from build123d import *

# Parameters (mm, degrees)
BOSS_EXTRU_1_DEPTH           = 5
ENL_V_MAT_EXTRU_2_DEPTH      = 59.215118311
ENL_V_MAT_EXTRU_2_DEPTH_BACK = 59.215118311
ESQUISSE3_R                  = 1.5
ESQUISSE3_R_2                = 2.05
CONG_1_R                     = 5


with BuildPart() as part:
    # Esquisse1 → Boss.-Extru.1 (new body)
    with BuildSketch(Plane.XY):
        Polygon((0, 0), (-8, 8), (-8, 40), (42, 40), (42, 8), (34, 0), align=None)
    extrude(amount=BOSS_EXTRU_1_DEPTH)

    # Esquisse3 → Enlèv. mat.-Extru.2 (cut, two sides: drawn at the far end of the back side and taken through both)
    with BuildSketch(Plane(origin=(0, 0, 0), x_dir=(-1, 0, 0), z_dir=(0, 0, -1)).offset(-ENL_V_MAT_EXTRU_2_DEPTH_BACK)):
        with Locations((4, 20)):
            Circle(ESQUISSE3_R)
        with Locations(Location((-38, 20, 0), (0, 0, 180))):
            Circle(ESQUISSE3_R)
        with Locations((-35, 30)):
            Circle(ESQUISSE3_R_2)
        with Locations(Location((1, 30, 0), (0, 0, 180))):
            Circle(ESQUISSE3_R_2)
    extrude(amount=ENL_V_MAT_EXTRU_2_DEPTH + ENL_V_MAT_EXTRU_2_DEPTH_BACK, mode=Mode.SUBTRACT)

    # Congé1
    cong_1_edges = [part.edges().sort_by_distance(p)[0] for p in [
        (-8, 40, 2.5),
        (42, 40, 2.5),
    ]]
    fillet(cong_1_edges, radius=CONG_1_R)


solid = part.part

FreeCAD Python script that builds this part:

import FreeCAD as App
import Part
import Sketcher
from FreeCAD import Vector


def edges_at(feature, points):
    """Names of the edges that pass closest to the given points."""
    edges = feature.Shape.Edges
    near = lambda p: min(range(len(edges)), key=lambda i: edges[i].distToShape(Part.Vertex(*p))[0])
    return sorted({f"Edge{near(p) + 1}" for p in points})


def add_polygon(sketch, points):
    """Adds a closed chain of lines whose ends are joined by coincident constraints."""
    first, n = sketch.GeometryCount, len(points)
    for a, b in zip(points, points[1:] + points[:1]):
        sketch.addGeometry(Part.LineSegment(App.Vector(*a, 0), App.Vector(*b, 0)), False)
    for i in range(n):
        sketch.addConstraint(Sketcher.Constraint("Coincident", first + i, 2, first + (i + 1) % n, 1))

doc = App.newDocument("Part")
params = doc.addObject("Spreadsheet::Sheet", "Params")
for row, (alias, value) in enumerate([
    ("sketch1_width", "34 mm"),
    ("sketch1_width2", "50 mm"),
    ("sketch1_height", "32 mm"),
    ("pad1_length", "5 mm"),
    ("sketch2_diameter", "3 mm"),
    ("sketch2_diameter2", "4.1 mm"),
    ("fillet_radius", "5 mm"),
], start=1):
    params.set(f"A{row}", alias)
    params.set(f"B{row}", "=" + value)
    params.setAlias(f"B{row}", alias)

body = doc.addObject("PartDesign::Body", "Body")

# Sketch on XY plane
sketch1 = body.newObject("Sketcher::SketchObject", "Sketch")
sketch1.AttachmentSupport = (doc.getObject("XY_Plane"), [""])
sketch1.MapMode = "FlatFace"
add_polygon(sketch1, [(-8, 8), (0, 0), (34, 0), (42, 8), (42, 40), (-8, 40)])  # lines 0-5
sketch1.addConstraint([
    Sketcher.Constraint("Horizontal", 1),
    Sketcher.Constraint("Vertical", 3),
    Sketcher.Constraint("Horizontal", 4),
    Sketcher.Constraint("Vertical", 5),
    Sketcher.Constraint("Coincident", 0, 2, -1, 1),
    Sketcher.Constraint("Perpendicular", 0, 2),
    Sketcher.Constraint("Horizontal", 2, 2, 5, 2),
    Sketcher.Constraint("Equal", 0, 2),
    Sketcher.Constraint("DistanceX", 1, 1, 1, 2, 34.0),
    Sketcher.Constraint("DistanceX", 4, 2, 4, 1, 50.0),
    Sketcher.Constraint("DistanceY", 3, 1, 3, 2, 32.0),
])
sketch1.setExpression("Constraints[14]", "Params.sketch1_width")
sketch1.setExpression("Constraints[15]", "Params.sketch1_width2")
sketch1.setExpression("Constraints[16]", "Params.sketch1_height")
pad1 = body.newObject("PartDesign::Pad", "Pad")
pad1.Profile = sketch1
pad1.setExpression("Length", "Params.pad1_length")

# Sketch on XY plane
sketch2 = body.newObject("Sketcher::SketchObject", "Sketch001")
sketch2.AttachmentSupport = (doc.getObject("XY_Plane"), [""])
sketch2.MapMode = "FlatFace"
sketch2.addGeometry([
    Part.Circle(Vector(-4, 20, 0), Vector(0, 0, 1), 1.5),
    Part.Circle(Vector(38, 20, 0), Vector(0, 0, 1), 1.5),
    Part.Circle(Vector(35, 30, 0), Vector(0, 0, 1), 2),
    Part.Circle(Vector(-1, 30, 0), Vector(0, 0, 1), 2),
], False)
sketch2.addConstraint([
    Sketcher.Constraint("Equal", 0, 1),
    Sketcher.Constraint("Equal", 2, 3),
    Sketcher.Constraint("Horizontal", 0, 3, 1, 3),
    Sketcher.Constraint("Horizontal", 2, 3, 3, 3),
    Sketcher.Constraint("Diameter", 0, 3.0),
    Sketcher.Constraint("Diameter", 2, 4.1),
    Sketcher.Constraint("DistanceX", 0, 3, -1, 1, 4.0),
    Sketcher.Constraint("DistanceY", -1, 1, 0, 3, 20.0),
    Sketcher.Constraint("DistanceX", -1, 1, 1, 3, 38.0),
    Sketcher.Constraint("DistanceX", -1, 1, 2, 3, 35.0),
    Sketcher.Constraint("DistanceY", -1, 1, 2, 3, 30.0),
    Sketcher.Constraint("DistanceX", 3, 3, -1, 1, 1.0),
])
sketch2.setExpression("Constraints[4]", "Params.sketch2_diameter")
sketch2.setExpression("Constraints[5]", "Params.sketch2_diameter2")
pocket1 = body.newObject("PartDesign::Pocket", "Pocket")
pocket1.Profile = sketch2
pocket1.Type = "ThroughAll"
pocket1.Midplane = True
doc.recompute()

fillet = body.newObject("PartDesign::Fillet", "Fillet")
fillet.Base = (pocket1, edges_at(pocket1, [(-8, 40, 2.5), (42, 40, 2.5)]))
fillet.setExpression("Radius", "Params.fillet_radius")

doc.recompute()
